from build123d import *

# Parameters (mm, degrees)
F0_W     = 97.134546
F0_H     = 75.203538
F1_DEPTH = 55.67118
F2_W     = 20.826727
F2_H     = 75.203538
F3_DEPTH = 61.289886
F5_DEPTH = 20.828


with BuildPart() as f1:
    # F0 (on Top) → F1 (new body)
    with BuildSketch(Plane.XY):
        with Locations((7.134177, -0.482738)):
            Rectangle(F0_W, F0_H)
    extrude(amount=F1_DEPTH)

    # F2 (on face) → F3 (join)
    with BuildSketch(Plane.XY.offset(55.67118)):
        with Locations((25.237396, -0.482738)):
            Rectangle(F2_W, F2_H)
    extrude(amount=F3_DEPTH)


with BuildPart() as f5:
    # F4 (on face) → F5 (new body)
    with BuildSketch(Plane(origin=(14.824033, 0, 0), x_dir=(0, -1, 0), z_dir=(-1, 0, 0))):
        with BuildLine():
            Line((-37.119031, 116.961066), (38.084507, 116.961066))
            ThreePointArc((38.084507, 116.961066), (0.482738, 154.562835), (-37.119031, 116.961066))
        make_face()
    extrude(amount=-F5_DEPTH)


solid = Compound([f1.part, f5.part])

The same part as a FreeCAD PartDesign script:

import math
import FreeCAD as App
import Part
import Sketcher
from FreeCAD import Vector
Q = App.Units.Quantity

doc = App.newDocument("Part")
body = doc.addObject("PartDesign::Body", "Body")

sketch1 = body.newObject("Sketcher::SketchObject", "Sketch")
sketch1.AttachmentSupport = (doc.getObject("XY_Plane"), [""])
sketch1.MapMode = "FlatFace"
sketch1.addGeometry(Part.LineSegment(Vector(-41, 37, 0), Vector(-41, -38, 0)), False)
sketch1.addGeometry(Part.LineSegment(Vector(-41, -38, 0), Vector(56, -38, 0)), False)
sketch1.addGeometry(Part.LineSegment(Vector(56, -38, 0), Vector(56, 37, 0)), False)
sketch1.addGeometry(Part.LineSegment(Vector(56, 37, 0), Vector(-41, 37, 0)), False)
sketch1.addConstraint(Sketcher.Constraint("Coincident", 0, 2, 1, 1))
sketch1.addConstraint(Sketcher.Constraint("Coincident", 1, 2, 2, 1))
sketch1.addConstraint(Sketcher.Constraint("Coincident", 2, 2, 3, 1))
sketch1.addConstraint(Sketcher.Constraint("Coincident", 3, 2, 0, 1))
sketch1.addConstraint(Sketcher.Constraint("Vertical", 0))
sketch1.addConstraint(Sketcher.Constraint("Horizontal", 1))
sketch1.addConstraint(Sketcher.Constraint("Vertical", 2))
sketch1.addConstraint(Sketcher.Constraint("Horizontal", 3))
sketch1.addConstraint(Sketcher.Constraint("DistanceY", 0, 2, 0, 1, Q("75.203538 mm")))
sketch1.addConstraint(Sketcher.Constraint("DistanceX", 1, 1, 1, 2, Q("97.134546 mm")))
sketch1.addConstraint(Sketcher.Constraint("DistanceX", -1, 1, 1, 2, Q("55.70145 mm")))
sketch1.addConstraint(Sketcher.Constraint("DistanceY", -1, 1, 2, 2, Q("37.119031 mm")))
pad1 = body.newObject("PartDesign::Pad", "Pad")
pad1.Profile = sketch1
pad1.Length = 55.67118

sketch2 = body.newObject("Sketcher::SketchObject", "Sketch001")
sketch2.AttachmentSupport = (doc.getObject("XY_Plane"), [""])
sketch2.MapMode = "FlatFace"
sketch2.AttachmentOffset = App.Placement(Vector(0, 0, 55.67118), App.Rotation())
sketch2.addGeometry(Part.LineSegment(Vector(15, 37, 0), Vector(15, -38, 0)), False)
sketch2.addGeometry(Part.LineSegment(Vector(15, -38, 0), Vector(36, -38, 0)), False)
sketch2.addGeometry(Part.LineSegment(Vector(36, -38, 0), Vector(36, 37, 0)), False)
sketch2.addGeometry(Part.LineSegment(Vector(36, 37, 0), Vector(15, 37, 0)), False)
sketch2.addConstraint(Sketcher.Constraint("Coincident", 0, 2, 1, 1))
sketch2.addConstraint(Sketcher.Constraint("Coincident", 1, 2, 2, 1))
sketch2.addConstraint(Sketcher.Constraint("Coincident", 2, 2, 3, 1))
sketch2.addConstraint(Sketcher.Constraint("Coincident", 3, 2, 0, 1))
sketch2.addConstraint(Sketcher.Constraint("Vertical", 0))
sketch2.addConstraint(Sketcher.Constraint("Horizontal", 1))
sketch2.addConstraint(Sketcher.Constraint("Vertical", 2))
sketch2.addConstraint(Sketcher.Constraint("Horizontal", 3))
sketch2.addConstraint(Sketcher.Constraint("DistanceY", 0, 2, 0, 1, Q("75.203538 mm")))
sketch2.addConstraint(Sketcher.Constraint("DistanceX", 1, 1, 1, 2, Q("20.826727 mm")))
sketch2.addConstraint(Sketcher.Constraint("DistanceX", -1, 1, 1, 2, Q("35.650759 mm")))
sketch2.addConstraint(Sketcher.Constraint("DistanceY", -1, 1, 2, 2, Q("37.119031 mm")))
pad2 = body.newObject("PartDesign::Pad", "Pad001")
pad2.Profile = sketch2
pad2.Length = 61.289886
body2 = doc.addObject("PartDesign::Body", "Body001")

sketch3 = body2.newObject("Sketcher::SketchObject", "Sketch002")
sketch3.AttachmentSupport = (doc.getObject("YZ_Plane001"), [""])
sketch3.MapMode = "FlatFace"
sketch3.AttachmentOffset = App.Placement(Vector(0, 0, 14.824033), App.Rotation())
sketch3.addGeometry(Part.LineSegment(Vector(37, 117, 0), Vector(-38, 117, 0)), False)
sketch3.addGeometry(Part.ArcOfCircle(Part.Circle(Vector(0, 117, 0), Vector(0, 0, 1), 38), math.radians(0), math.radians(180)), False)
sketch3.addConstraint(Sketcher.Constraint("Coincident", 0, 1, 1, 1))
sketch3.addConstraint(Sketcher.Constraint("Coincident", 1, 2, 0, 2))
sketch3.addConstraint(Sketcher.Constraint("Horizontal", 0))
sketch3.addConstraint(Sketcher.Constraint("Horizontal", 1, 3, 0, 1))
sketch3.addConstraint(Sketcher.Constraint("Radius", 1, Q("37.601769 mm")))
sketch3.addConstraint(Sketcher.Constraint("DistanceX", -1, 1, 0, 1, Q("37.119031 mm")))
sketch3.addConstraint(Sketcher.Constraint("DistanceY", -1, 1, 1, 3, Q("116.961066 mm")))
pad3 = body2.newObject("PartDesign::Pad", "Pad002")
pad3.Profile = sketch3
pad3.Length = Q("0.82 in")

doc.recompute()
